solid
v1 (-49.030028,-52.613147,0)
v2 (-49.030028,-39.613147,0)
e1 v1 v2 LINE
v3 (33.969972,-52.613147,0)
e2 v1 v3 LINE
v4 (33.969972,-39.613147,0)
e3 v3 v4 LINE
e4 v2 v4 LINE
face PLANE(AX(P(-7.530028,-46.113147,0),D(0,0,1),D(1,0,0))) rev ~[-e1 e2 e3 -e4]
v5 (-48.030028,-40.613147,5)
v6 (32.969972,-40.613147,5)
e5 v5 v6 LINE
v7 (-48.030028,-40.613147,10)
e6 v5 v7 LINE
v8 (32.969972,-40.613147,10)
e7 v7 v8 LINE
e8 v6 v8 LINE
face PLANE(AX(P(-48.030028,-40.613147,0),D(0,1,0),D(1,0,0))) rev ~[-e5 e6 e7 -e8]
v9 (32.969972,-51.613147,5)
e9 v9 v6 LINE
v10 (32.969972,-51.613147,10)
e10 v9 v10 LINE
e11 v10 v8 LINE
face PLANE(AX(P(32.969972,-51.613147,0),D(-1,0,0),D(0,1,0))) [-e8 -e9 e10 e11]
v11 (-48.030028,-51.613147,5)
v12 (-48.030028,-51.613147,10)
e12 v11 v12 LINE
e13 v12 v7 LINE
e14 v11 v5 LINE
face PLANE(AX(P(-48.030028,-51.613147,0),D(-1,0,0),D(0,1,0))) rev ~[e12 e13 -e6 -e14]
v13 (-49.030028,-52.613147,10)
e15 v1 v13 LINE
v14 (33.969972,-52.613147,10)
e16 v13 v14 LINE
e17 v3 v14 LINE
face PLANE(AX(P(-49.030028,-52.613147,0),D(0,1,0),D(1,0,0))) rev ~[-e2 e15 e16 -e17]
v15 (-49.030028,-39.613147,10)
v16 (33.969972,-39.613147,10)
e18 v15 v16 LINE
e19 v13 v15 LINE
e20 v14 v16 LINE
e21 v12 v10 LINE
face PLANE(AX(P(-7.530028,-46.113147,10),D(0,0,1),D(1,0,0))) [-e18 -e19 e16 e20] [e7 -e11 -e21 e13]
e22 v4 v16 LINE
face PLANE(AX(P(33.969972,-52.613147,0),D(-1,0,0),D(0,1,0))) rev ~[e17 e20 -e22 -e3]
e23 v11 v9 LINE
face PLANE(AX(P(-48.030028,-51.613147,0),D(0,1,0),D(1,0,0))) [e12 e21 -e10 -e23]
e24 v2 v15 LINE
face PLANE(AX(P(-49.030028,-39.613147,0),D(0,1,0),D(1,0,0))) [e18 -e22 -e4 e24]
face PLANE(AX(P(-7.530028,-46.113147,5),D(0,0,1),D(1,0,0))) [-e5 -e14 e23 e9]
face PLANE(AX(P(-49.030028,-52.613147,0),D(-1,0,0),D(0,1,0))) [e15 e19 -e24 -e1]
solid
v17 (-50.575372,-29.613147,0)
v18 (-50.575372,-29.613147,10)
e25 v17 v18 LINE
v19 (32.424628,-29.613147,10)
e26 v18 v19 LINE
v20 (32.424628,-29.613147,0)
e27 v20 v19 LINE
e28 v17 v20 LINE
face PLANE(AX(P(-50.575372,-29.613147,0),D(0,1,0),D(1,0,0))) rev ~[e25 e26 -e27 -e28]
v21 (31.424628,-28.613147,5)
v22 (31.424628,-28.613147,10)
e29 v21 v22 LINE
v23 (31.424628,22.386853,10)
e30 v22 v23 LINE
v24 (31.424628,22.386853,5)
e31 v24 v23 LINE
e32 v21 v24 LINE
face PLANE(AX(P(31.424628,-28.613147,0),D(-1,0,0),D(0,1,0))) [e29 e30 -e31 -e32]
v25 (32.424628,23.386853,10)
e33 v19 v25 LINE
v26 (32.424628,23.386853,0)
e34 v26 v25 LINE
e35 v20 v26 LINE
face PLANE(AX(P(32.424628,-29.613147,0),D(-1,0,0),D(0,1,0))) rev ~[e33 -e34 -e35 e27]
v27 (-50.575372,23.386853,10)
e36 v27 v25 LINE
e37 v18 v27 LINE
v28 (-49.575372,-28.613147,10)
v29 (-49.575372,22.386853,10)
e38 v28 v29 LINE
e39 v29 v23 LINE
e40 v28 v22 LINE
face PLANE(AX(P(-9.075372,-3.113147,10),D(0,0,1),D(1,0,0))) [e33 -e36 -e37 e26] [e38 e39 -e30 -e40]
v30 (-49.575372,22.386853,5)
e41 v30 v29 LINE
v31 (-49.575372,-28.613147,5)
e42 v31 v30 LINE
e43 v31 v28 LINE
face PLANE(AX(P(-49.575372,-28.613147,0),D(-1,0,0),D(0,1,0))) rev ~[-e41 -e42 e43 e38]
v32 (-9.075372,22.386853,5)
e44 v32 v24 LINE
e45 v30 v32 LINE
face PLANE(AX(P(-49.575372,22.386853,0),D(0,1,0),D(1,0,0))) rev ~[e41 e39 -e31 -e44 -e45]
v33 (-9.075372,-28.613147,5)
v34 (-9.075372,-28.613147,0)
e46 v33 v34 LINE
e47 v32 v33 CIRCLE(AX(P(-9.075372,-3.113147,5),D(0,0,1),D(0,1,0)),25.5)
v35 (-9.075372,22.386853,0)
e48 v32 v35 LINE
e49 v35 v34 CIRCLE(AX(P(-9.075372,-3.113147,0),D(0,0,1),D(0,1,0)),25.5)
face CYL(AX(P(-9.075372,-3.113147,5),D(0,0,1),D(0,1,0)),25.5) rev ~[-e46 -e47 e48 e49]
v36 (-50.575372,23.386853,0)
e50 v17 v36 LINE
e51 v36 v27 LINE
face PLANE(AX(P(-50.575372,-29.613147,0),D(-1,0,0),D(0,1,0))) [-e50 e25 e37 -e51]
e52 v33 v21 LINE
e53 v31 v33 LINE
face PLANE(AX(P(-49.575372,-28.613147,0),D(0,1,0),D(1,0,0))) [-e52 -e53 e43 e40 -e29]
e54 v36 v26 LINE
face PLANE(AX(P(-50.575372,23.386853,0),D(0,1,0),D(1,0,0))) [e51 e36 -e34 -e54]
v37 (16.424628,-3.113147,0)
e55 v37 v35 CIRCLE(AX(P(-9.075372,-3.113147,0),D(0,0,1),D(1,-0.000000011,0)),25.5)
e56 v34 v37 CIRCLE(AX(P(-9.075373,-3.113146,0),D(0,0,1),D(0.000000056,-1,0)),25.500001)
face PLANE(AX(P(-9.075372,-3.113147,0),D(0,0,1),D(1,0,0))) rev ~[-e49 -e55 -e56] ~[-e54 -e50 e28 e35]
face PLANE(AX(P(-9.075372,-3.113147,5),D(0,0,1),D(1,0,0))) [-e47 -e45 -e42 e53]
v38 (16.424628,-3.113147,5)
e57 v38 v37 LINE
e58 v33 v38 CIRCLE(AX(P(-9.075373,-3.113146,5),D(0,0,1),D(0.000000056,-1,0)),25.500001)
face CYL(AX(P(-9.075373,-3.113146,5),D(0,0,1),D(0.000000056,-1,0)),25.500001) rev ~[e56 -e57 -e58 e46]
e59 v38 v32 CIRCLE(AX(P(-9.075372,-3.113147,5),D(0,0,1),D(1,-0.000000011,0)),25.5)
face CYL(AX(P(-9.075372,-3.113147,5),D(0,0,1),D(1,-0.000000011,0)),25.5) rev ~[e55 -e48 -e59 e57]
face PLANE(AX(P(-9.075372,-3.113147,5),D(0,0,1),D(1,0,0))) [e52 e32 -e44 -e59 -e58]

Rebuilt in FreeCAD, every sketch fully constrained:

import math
import FreeCAD as App
import Part
import Sketcher

V = App.Vector
Q = App.Units.Quantity


def add_polygon(sketch, points):
    """Adds a closed chain of lines whose ends are joined by coincident constraints."""
    first, n = sketch.GeometryCount, len(points)
    for a, b in zip(points, points[1:] + points[:1]):
        sketch.addGeometry(Part.LineSegment(App.Vector(*a, 0), App.Vector(*b, 0)), False)
    for i in range(n):
        sketch.addConstraint(Sketcher.Constraint("Coincident", first + i, 2, first + (i + 1) % n, 1))

doc = App.newDocument("Part")
body = doc.addObject("PartDesign::Body", "Body")

# Sketch on XY plane
sketch1 = body.newObject("Sketcher::SketchObject", "Sketch")
sketch1.AttachmentSupport = (doc.getObject("XY_Plane"), [""])
sketch1.MapMode = "FlatFace"
add_polygon(sketch1, [(-51, 23), (-51, -30), (32, -30), (32, 23)])  # lines 0-3
add_polygon(sketch1, [(31, -29), (-50, -29), (-50, 22), (31, 22)])  # lines 4-7
sketch1.addConstraint([
    Sketcher.Constraint("Vertical", 0),
    Sketcher.Constraint("Horizontal", 1),
    Sketcher.Constraint("Vertical", 2),
    Sketcher.Constraint("Horizontal", 3),
    Sketcher.Constraint("Horizontal", 4),
    Sketcher.Constraint("Vertical", 5),
    Sketcher.Constraint("Horizontal", 6),
    Sketcher.Constraint("Vertical", 7),
    Sketcher.Constraint("DistanceX", 1, 1, 1, 2, Q("83 mm")),
    Sketcher.Constraint("DistanceX", 4, 2, 4, 1, Q("81 mm")),
    Sketcher.Constraint("DistanceY", 0, 2, 0, 1, Q("53 mm")),
    Sketcher.Constraint("DistanceY", 5, 1, 5, 2, Q("51 mm")),
    Sketcher.Constraint("DistanceX", 0, 2, 4, 2, Q("1 mm")),
    Sketcher.Constraint("DistanceY", 0, 2, 4, 2, Q("1 mm")),
    Sketcher.Constraint("DistanceX", 0, 2, -1, 1, Q("50.575372 mm")),
    Sketcher.Constraint("DistanceY", 0, 2, -1, 1, Q("29.613147 mm")),
])
pad1 = body.newObject("PartDesign::Pad", "Pad")
pad1.Profile = sketch1
pad1.Length = 10

# Sketch on XY plane
sketch2 = body.newObject("Sketcher::SketchObject", "Sketch001")
sketch2.AttachmentSupport = (doc.getObject("XY_Plane"), [""])
sketch2.MapMode = "FlatFace"
add_polygon(sketch2, [(-50, 22), (-50, -29), (31, -29), (31, 22)])  # lines 0-3
sketch2.addConstraint([
    Sketcher.Constraint("Vertical", 0),
    Sketcher.Constraint("Horizontal", 1),
    Sketcher.Constraint("Vertical", 2),
    Sketcher.Constraint("Horizontal", 3),
    Sketcher.Constraint("DistanceX", 1, 1, 1, 2, Q("81 mm")),
    Sketcher.Constraint("DistanceY", 0, 2, 0, 1, Q("51 mm")),
    Sketcher.Constraint("DistanceX", 0, 2, -1, 1, Q("49.575372 mm")),
    Sketcher.Constraint("DistanceY", 0, 2, -1, 1, Q("28.613147 mm")),
])
pad2 = body.newObject("PartDesign::Pad", "Pad001")
pad2.Profile = sketch2
pad2.Length = 5

# Sketch on XY plane
sketch3 = body.newObject("Sketcher::SketchObject", "Sketch002")
sketch3.AttachmentSupport = (doc.getObject("XY_Plane"), [""])
sketch3.MapMode = "FlatFace"
sketch3.AttachmentOffset = App.Placement(V(0, 0, 5), App.Rotation())
sketch3.addGeometry([
    Part.ArcOfCircle(Part.Circle(V(-9, -3, 0), V(0, 0, 1), 26), math.radians(-90), math.radians(0)),
    Part.ArcOfCircle(Part.Circle(V(-9, -3, 0), V(0, 0, 1), 25), math.radians(0), math.radians(90)),
    Part.ArcOfCircle(Part.Circle(V(-9, -3, 0), V(0, 0, 1), 26), math.radians(90), math.radians(270)),
], False)
sketch3.addConstraint([
    Sketcher.Constraint("Tangent", 0, 2, 1, 1),
    Sketcher.Constraint("Tangent", 1, 2, 2, 1),
    Sketcher.Constraint("Tangent", 2, 2, 0, 1),
    Sketcher.Constraint("Horizontal", 2, 3, 0, 2),
    Sketcher.Constraint("Vertical", 2, 3, 1, 2),
    Sketcher.Constraint("Vertical", 1, 2, 2, 2),
    Sketcher.Constraint("Radius", 0, Q("25.500001 mm")),
    Sketcher.Constraint("DistanceX", 1, 3, -1, 1, Q("9.075372 mm")),
    Sketcher.Constraint("DistanceY", 0, 3, -1, 1, Q("3.113146 mm")),
])
pocket1 = body.newObject("PartDesign::Pocket", "Pocket")
pocket1.Profile = sketch3
pocket1.Length = 25
body2 = doc.addObject("PartDesign::Body", "Body001")

# Sketch on XY plane
sketch4 = body2.newObject("Sketcher::SketchObject", "Sketch003")
sketch4.AttachmentSupport = (doc.getObject("XY_Plane001"), [""])
sketch4.MapMode = "FlatFace"
add_polygon(sketch4, [(-48, -41), (-48, -52), (33, -52), (33, -41)])  # lines 0-3
sketch4.addConstraint([
    Sketcher.Constraint("Vertical", 0),
    Sketcher.Constraint("Horizontal", 1),
    Sketcher.Constraint("Vertical", 2),
    Sketcher.Constraint("Horizontal", 3),
    Sketcher.Constraint("DistanceX", 1, 1, 1, 2, Q("81 mm")),
    Sketcher.Constraint("DistanceY", 0, 2, 0, 1, Q("11 mm")),
    Sketcher.Constraint("DistanceX", 0, 2, -1, 1, Q("48.030028 mm")),
    Sketcher.Constraint("DistanceY", 0, 2, -1, 1, Q("51.613147 mm")),
])
pad3 = body2.newObject("PartDesign::Pad", "Pad002")
pad3.Profile = sketch4
pad3.Length = 5

# Sketch on XY plane
sketch5 = body2.newObject("Sketcher::SketchObject", "Sketch004")
sketch5.AttachmentSupport = (doc.getObject("XY_Plane001"), [""])
sketch5.MapMode = "FlatFace"
add_polygon(sketch5, [(-49, -40), (-49, -53), (34, -53), (34, -40)])  # lines 0-3
add_polygon(sketch5, [(33, -52), (-48, -52), (-48, -41), (33, -41)])  # lines 4-7
sketch5.addConstraint([
    Sketcher.Constraint("Vertical", 0),
    Sketcher.Constraint("Horizontal", 1),
    Sketcher.Constraint("Vertical", 2),
    Sketcher.Constraint("Horizontal", 3),
    Sketcher.Constraint("Horizontal", 4),
    Sketcher.Constraint("Vertical", 5),
    Sketcher.Constraint("Horizontal", 6),
    Sketcher.Constraint("Vertical", 7),
    Sketcher.Constraint("DistanceX", 1, 1, 1, 2, Q("83 mm")),
    Sketcher.Constraint("DistanceX", 4, 2, 4, 1, Q("81 mm")),
    Sketcher.Constraint("DistanceY", 0, 2, 0, 1, Q("13 mm")),
    Sketcher.Constraint("DistanceY", 5, 1, 5, 2, Q("11 mm")),
    Sketcher.Constraint("DistanceX", 0, 2, 4, 2, Q("1 mm")),
    Sketcher.Constraint("DistanceY", 0, 2, 4, 2, Q("1 mm")),
    Sketcher.Constraint("DistanceX", 0, 2, -1, 1, Q("49.030028 mm")),
    Sketcher.Constraint("DistanceY", 0, 2, -1, 1, Q("52.613147 mm")),
])
pad4 = body2.newObject("PartDesign::Pad", "Pad003")
pad4.Profile = sketch5
pad4.Length = 10

doc.recompute()
